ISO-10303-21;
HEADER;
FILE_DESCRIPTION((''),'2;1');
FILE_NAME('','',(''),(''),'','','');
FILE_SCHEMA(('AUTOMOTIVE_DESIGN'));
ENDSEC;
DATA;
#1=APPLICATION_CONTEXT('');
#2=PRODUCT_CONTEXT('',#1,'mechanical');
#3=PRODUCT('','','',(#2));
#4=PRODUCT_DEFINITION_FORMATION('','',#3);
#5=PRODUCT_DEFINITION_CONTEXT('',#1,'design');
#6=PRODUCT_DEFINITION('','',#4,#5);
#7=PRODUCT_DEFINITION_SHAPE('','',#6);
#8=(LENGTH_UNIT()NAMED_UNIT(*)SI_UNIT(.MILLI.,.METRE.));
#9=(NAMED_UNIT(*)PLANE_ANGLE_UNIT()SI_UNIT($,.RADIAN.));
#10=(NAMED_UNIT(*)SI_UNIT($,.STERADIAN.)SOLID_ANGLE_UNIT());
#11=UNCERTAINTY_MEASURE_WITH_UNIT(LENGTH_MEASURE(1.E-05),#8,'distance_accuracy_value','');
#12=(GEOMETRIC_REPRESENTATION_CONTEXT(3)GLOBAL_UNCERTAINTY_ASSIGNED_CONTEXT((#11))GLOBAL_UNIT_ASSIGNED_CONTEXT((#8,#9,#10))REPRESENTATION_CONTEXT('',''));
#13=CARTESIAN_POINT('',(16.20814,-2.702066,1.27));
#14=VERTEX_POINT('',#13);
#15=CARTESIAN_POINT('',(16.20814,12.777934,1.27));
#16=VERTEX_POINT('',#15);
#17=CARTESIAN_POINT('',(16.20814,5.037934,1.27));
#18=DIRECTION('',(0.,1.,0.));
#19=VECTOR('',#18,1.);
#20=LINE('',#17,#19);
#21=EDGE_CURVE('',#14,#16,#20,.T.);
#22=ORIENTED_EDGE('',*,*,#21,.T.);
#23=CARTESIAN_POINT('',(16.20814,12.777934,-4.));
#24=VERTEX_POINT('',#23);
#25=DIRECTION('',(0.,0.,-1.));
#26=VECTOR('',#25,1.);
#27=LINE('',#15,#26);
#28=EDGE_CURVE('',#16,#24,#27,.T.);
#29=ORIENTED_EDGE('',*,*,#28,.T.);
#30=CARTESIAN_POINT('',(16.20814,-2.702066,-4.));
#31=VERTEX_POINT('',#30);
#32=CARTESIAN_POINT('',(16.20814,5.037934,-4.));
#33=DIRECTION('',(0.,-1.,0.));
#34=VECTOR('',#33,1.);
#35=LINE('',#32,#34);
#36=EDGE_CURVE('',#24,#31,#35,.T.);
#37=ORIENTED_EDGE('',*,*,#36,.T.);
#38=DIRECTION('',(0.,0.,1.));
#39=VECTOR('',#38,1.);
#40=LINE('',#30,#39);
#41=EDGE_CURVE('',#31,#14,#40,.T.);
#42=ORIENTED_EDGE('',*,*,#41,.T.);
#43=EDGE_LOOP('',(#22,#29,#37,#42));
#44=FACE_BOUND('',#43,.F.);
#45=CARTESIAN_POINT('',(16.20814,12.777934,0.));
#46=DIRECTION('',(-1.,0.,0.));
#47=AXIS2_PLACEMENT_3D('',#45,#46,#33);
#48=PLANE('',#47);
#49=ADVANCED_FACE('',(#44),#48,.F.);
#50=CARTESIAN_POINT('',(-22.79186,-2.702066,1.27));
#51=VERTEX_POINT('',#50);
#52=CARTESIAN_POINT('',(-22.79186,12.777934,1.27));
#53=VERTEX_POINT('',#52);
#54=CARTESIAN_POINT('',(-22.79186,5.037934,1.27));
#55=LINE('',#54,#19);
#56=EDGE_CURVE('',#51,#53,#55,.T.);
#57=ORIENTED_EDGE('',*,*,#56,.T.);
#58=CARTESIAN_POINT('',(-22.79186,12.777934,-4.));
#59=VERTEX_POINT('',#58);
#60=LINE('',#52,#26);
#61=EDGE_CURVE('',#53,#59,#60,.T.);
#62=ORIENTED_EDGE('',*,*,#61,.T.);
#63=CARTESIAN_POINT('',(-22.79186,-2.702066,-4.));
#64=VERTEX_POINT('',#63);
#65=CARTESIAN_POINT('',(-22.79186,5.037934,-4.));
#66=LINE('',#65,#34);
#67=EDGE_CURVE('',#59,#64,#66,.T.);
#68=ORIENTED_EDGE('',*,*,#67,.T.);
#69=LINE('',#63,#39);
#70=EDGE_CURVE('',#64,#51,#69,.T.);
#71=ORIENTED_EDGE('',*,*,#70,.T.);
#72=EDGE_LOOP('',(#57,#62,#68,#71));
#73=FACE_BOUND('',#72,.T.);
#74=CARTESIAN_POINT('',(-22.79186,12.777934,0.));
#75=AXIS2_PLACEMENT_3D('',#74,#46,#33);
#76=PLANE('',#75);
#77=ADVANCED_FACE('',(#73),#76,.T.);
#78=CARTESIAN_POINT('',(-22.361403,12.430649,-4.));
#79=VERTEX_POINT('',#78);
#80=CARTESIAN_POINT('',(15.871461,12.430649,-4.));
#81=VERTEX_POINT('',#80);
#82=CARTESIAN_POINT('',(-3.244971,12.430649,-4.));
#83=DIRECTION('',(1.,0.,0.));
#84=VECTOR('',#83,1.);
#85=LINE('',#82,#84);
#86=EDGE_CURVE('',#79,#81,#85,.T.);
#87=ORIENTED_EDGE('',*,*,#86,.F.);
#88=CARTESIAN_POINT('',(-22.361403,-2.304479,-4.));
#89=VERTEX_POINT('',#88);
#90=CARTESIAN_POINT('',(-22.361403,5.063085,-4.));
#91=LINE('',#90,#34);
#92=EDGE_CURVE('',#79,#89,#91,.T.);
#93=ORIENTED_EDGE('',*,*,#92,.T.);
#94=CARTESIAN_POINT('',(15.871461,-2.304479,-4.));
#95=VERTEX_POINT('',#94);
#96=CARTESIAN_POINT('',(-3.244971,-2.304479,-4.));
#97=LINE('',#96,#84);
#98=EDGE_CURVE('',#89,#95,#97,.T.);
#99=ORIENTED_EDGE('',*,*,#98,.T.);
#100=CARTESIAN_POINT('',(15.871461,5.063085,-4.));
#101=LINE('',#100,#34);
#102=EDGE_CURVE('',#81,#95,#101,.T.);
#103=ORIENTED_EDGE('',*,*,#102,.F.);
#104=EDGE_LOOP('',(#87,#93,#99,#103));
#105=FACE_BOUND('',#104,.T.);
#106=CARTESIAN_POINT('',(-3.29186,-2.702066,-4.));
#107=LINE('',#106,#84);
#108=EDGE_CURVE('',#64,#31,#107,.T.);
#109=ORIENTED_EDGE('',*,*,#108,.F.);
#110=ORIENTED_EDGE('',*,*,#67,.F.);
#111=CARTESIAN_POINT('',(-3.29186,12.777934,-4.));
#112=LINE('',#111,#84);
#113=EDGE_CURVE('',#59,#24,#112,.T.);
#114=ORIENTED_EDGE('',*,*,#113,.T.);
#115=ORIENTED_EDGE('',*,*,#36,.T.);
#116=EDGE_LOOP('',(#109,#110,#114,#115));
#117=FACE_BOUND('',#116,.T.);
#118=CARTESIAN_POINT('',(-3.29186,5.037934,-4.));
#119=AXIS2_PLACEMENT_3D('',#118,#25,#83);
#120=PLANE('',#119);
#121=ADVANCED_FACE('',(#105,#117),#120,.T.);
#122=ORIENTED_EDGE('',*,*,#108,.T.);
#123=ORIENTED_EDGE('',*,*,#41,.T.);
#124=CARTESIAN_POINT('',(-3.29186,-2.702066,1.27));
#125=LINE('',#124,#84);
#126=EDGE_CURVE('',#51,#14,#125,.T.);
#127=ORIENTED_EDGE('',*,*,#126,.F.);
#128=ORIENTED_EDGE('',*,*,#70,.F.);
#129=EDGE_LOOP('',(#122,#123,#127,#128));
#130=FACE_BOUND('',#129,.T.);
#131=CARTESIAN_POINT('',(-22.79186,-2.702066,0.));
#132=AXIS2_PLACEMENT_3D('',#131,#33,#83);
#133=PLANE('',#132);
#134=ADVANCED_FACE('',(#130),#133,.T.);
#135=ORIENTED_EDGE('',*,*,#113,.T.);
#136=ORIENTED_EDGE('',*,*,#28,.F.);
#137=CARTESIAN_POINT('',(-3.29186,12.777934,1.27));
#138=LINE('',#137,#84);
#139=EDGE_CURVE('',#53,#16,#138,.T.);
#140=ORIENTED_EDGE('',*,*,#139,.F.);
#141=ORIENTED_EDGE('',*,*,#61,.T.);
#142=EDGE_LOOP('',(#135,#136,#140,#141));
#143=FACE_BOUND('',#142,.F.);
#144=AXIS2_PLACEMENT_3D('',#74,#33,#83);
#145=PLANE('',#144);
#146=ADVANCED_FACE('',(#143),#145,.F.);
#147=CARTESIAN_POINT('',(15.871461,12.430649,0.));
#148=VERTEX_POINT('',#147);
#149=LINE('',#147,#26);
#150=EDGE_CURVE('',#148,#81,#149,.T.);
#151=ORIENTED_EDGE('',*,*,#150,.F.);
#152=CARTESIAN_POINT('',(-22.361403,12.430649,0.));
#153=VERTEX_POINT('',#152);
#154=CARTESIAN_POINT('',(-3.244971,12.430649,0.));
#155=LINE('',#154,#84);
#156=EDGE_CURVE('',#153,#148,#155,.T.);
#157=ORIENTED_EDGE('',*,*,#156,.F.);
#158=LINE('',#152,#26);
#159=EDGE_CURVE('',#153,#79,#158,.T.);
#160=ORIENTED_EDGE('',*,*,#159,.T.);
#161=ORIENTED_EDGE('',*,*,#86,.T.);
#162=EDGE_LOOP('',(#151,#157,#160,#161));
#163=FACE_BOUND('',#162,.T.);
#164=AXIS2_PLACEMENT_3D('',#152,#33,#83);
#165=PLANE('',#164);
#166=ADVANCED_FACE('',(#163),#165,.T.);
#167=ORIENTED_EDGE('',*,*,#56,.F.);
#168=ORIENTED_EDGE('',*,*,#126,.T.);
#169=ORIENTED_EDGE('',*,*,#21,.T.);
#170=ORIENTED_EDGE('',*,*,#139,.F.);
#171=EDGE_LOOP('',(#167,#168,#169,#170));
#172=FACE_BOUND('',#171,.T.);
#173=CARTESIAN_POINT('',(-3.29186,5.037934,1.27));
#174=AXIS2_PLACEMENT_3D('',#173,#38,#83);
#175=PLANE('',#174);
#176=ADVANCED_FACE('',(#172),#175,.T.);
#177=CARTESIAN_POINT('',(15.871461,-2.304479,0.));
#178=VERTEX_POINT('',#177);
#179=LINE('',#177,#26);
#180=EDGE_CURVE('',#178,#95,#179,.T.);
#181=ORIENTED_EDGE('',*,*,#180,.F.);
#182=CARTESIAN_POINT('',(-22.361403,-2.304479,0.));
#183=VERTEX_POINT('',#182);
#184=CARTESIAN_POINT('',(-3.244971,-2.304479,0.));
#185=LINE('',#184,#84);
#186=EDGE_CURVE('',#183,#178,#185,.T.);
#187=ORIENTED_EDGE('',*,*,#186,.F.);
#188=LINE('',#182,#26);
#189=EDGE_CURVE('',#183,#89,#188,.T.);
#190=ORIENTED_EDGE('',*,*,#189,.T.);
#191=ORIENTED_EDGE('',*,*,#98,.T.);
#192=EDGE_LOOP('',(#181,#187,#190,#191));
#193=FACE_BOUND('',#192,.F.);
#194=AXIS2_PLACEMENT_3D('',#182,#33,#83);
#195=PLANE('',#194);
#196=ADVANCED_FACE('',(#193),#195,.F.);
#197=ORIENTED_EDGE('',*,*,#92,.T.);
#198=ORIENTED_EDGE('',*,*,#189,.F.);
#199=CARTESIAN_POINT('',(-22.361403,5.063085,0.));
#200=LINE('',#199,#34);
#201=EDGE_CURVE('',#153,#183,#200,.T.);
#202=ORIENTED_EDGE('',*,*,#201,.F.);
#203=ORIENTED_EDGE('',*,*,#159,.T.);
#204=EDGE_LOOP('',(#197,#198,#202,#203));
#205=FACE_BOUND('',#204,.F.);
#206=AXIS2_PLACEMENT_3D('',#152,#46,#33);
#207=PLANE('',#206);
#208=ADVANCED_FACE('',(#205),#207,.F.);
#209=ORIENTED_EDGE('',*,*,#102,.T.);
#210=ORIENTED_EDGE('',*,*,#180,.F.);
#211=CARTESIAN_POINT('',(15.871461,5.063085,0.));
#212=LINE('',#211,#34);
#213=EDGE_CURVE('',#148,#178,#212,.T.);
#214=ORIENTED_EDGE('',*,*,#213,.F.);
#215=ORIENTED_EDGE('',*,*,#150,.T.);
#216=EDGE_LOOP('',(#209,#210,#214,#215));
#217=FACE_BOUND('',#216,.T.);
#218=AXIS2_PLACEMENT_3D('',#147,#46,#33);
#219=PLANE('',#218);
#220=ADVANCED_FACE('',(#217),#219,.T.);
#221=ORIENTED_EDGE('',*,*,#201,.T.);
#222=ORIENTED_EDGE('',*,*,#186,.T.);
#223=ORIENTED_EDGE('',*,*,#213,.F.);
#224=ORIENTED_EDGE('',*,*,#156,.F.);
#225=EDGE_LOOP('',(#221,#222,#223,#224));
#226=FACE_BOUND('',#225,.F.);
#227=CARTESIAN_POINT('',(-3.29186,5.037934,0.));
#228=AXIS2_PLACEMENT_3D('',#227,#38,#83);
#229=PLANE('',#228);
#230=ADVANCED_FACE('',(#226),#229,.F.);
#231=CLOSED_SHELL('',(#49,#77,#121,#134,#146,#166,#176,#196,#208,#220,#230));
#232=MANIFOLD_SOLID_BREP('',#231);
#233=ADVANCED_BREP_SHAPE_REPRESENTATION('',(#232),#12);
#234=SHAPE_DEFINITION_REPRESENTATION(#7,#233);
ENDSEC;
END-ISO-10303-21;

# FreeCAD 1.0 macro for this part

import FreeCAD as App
import Part
import Sketcher

V = App.Vector
Q = App.Units.Quantity

doc = App.newDocument("Part")
body = doc.addObject("PartDesign::Body", "Body")

# Sketch on XY plane
sketch1 = body.newObject("Sketcher::SketchObject", "Sketch")
sketch1.AttachmentSupport = (doc.getObject("XY_Plane"), [""])
sketch1.MapMode = "FlatFace"
sketch1.addGeometry([
    Part.LineSegment(V(-22.79186, 12.777934, 0), V(-22.79186, -2.702066, 0)),
    Part.LineSegment(V(-22.79186, -2.702066, 0), V(16.20814, -2.702066, 0)),
    Part.LineSegment(V(16.20814, -2.702066, 0), V(16.20814, 12.777934, 0)),
    Part.LineSegment(V(16.20814, 12.777934, 0), V(-22.79186, 12.777934, 0)),
], False)
sketch1.addConstraint([
    Sketcher.Constraint("Coincident", 0, 2, 1, 1),
    Sketcher.Constraint("Coincident", 1, 2, 2, 1),
    Sketcher.Constraint("Coincident", 2, 2, 3, 1),
    Sketcher.Constraint("Coincident", 3, 2, 0, 1),
    Sketcher.Constraint("Vertical", 0),
    Sketcher.Constraint("Horizontal", 1),
    Sketcher.Constraint("Vertical", 2),
    Sketcher.Constraint("Horizontal", 3),
    Sketcher.Constraint("DistanceX", 1, 1, 1, 2, Q("39 mm")),
    Sketcher.Constraint("DistanceY", 0, 2, 0, 1, Q("15.48 mm")),
    Sketcher.Constraint("DistanceX", 0, 2, -1, 1, Q("22.79186 mm")),
    Sketcher.Constraint("DistanceY", 0, 2, -1, 1, Q("2.702066 mm")),
])
pad1 = body.newObject("PartDesign::Pad", "Pad")
pad1.Profile = sketch1
pad1.Length = 1.27

# Sketch on XY plane
sketch2 = body.newObject("Sketcher::SketchObject", "Sketch001")
sketch2.AttachmentSupport = (doc.getObject("XY_Plane"), [""])
sketch2.MapMode = "FlatFace"
sketch2.addGeometry([
    Part.LineSegment(V(-22.79186, -2.702066, 0), V(-22.79186, 12.777934, 0)),  # 0
    Part.LineSegment(V(-22.79186, 12.777934, 0), V(16.20814, 12.777934, 0)),  # 1
    Part.LineSegment(V(16.20814, 12.777934, 0), V(16.20814, -2.702066, 0)),  # 2
    Part.LineSegment(V(16.20814, -2.702066, 0), V(-22.79186, -2.702066, 0)),  # 3
    Part.LineSegment(V(15.871461, 12.430649, 0), V(-22.361403, 12.430649, 0)),  # 4
    Part.LineSegment(V(-22.361403, 12.430649, 0), V(-22.361403, -2.304479, 0)),  # 5
    Part.LineSegment(V(-22.361403, -2.304479, 0), V(15.871461, -2.304479, 0)),  # 6
    Part.LineSegment(V(15.871461, -2.304479, 0), V(15.871461, 12.430649, 0)),  # 7
], False)
sketch2.addConstraint([
    Sketcher.Constraint("Coincident", 0, 2, 1, 1),
    Sketcher.Constraint("Coincident", 1, 2, 2, 1),
    Sketcher.Constraint("Coincident", 2, 2, 3, 1),
    Sketcher.Constraint("Coincident", 3, 2, 0, 1),
    Sketcher.Constraint("Coincident", 4, 2, 5, 1),
    Sketcher.Constraint("Coincident", 5, 2, 6, 1),
    Sketcher.Constraint("Coincident", 6, 2, 7, 1),
    Sketcher.Constraint("Coincident", 7, 2, 4, 1),
    Sketcher.Constraint("Vertical", 0),
    Sketcher.Constraint("Horizontal", 1),
    Sketcher.Constraint("Vertical", 2),
    Sketcher.Constraint("Horizontal", 3),
    Sketcher.Constraint("Horizontal", 4),
    Sketcher.Constraint("Vertical", 5),
    Sketcher.Constraint("Horizontal", 6),
    Sketcher.Constraint("Vertical", 7),
    Sketcher.Constraint("DistanceX", 1, 1, 1, 2, Q("39 mm")),
    Sketcher.Constraint("DistanceY", 0, 1, 0, 2, Q("15.48 mm")),
    Sketcher.Constraint("DistanceY", 5, 2, 5, 1, Q("14.735129 mm")),
    Sketcher.Constraint("DistanceX", 4, 2, 4, 1, Q("38.232864 mm")),
    Sketcher.Constraint("DistanceX", 0, 2, -1, 1, Q("22.79186 mm")),
    Sketcher.Constraint("DistanceY", -1, 1, 4, 2, Q("12.430649 mm")),
    Sketcher.Constraint("DistanceX", -1, 1, 6, 2, Q("15.871461 mm")),
    Sketcher.Constraint("DistanceY", -1, 1, 0, 2, Q("12.777934 mm")),
])
pad2 = body.newObject("PartDesign::Pad", "Pad001")
pad2.Profile = sketch2
pad2.Length = 4
pad2.Reversed = True

doc.recompute()
